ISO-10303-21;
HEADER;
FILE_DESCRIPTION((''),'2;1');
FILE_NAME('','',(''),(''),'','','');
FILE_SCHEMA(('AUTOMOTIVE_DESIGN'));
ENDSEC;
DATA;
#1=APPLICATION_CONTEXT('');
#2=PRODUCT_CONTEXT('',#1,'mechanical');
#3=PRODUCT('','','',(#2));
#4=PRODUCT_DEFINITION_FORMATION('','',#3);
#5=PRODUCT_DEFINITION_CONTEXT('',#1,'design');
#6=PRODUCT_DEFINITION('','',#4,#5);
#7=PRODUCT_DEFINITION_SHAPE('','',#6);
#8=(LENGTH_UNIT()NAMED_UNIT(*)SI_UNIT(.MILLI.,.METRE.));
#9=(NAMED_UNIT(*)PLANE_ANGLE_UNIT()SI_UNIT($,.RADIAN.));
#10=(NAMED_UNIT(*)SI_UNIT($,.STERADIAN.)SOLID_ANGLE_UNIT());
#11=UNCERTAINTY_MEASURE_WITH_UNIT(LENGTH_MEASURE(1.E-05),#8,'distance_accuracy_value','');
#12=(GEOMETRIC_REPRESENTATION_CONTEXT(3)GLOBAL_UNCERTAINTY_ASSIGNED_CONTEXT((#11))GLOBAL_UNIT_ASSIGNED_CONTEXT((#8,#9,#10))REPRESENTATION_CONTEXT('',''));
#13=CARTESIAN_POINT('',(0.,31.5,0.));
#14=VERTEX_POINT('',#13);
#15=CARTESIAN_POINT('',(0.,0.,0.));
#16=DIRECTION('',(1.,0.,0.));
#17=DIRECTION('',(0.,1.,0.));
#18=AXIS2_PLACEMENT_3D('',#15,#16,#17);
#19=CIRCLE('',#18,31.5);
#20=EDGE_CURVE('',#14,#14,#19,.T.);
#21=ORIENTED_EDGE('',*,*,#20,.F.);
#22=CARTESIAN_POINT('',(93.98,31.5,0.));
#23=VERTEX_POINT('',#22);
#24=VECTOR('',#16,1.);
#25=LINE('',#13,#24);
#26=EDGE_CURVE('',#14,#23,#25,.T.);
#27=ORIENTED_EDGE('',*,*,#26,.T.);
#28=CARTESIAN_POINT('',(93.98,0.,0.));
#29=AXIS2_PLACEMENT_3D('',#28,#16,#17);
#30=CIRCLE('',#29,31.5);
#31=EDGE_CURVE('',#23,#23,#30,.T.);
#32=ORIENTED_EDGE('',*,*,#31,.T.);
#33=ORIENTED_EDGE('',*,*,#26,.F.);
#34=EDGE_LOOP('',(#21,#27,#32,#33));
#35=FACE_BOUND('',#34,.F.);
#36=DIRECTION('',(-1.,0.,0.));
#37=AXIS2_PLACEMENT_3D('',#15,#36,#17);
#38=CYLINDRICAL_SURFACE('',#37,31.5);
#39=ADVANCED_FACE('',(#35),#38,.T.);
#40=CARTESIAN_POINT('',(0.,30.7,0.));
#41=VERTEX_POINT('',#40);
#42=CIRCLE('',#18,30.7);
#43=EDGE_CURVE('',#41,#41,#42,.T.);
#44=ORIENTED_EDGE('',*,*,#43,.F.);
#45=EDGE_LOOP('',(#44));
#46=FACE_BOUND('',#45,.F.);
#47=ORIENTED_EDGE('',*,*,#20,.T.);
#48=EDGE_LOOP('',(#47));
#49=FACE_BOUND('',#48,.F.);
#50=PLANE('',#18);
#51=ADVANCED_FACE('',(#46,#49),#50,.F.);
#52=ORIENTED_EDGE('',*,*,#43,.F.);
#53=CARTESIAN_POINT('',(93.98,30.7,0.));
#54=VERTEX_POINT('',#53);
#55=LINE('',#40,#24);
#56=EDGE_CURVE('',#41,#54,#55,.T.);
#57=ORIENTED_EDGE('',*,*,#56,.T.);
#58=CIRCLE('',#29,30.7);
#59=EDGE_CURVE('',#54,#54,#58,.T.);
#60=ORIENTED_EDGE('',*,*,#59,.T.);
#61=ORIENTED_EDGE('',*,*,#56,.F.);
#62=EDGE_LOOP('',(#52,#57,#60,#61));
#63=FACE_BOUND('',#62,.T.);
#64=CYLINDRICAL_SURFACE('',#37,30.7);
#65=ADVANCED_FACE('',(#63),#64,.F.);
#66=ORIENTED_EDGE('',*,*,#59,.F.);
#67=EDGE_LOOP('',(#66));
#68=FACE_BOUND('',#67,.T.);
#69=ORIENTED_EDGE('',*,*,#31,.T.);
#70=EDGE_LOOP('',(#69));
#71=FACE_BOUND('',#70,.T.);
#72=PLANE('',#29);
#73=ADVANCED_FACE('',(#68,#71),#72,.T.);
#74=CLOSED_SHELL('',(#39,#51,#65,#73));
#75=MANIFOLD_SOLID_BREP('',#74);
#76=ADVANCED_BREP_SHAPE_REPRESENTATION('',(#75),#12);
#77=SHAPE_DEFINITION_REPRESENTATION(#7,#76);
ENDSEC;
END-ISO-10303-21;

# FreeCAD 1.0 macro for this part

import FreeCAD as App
import Part
import Sketcher
Q = App.Units.Quantity

doc = App.newDocument("Part")
params = doc.addObject("Spreadsheet::Sheet", "Params")
for row, (alias, value) in enumerate([
    ("sketch1_diameter", "63 mm"),
    ("sketch1_diameter2", "61.4 mm"),
    ("pad1_length", "93.98 mm"),
], start=1):
    params.set(f"A{row}", alias)
    params.set(f"B{row}", "=" + value)
    params.setAlias(f"B{row}", alias)

body = doc.addObject("PartDesign::Body", "Body")

sketch1 = body.newObject("Sketcher::SketchObject", "Sketch")
sketch1.AttachmentSupport = (doc.getObject("YZ_Plane"), [""])
sketch1.MapMode = "FlatFace"
sketch1.addGeometry([
    Part.Circle(App.Vector(0, 0, 0), App.Vector(0, 0, 1), 31.5),
    Part.Circle(App.Vector(0, 0, 0), App.Vector(0, 0, 1), 30.7),
], False)
sketch1.addConstraint([
    Sketcher.Constraint("Coincident", 0, 3, -1, 1),
    Sketcher.Constraint("Coincident", 1, 3, -1, 1),
    Sketcher.Constraint("Diameter", 0, Q("63 mm")),
    Sketcher.Constraint("Diameter", 1, Q("61.4 mm")),
])
sketch1.setExpression("Constraints[2]", "Params.sketch1_diameter")
sketch1.setExpression("Constraints[3]", "Params.sketch1_diameter2")
pad1 = body.newObject("PartDesign::Pad", "Pad")
pad1.Profile = sketch1
pad1.setExpression("Length", "Params.pad1_length")

doc.recompute()
